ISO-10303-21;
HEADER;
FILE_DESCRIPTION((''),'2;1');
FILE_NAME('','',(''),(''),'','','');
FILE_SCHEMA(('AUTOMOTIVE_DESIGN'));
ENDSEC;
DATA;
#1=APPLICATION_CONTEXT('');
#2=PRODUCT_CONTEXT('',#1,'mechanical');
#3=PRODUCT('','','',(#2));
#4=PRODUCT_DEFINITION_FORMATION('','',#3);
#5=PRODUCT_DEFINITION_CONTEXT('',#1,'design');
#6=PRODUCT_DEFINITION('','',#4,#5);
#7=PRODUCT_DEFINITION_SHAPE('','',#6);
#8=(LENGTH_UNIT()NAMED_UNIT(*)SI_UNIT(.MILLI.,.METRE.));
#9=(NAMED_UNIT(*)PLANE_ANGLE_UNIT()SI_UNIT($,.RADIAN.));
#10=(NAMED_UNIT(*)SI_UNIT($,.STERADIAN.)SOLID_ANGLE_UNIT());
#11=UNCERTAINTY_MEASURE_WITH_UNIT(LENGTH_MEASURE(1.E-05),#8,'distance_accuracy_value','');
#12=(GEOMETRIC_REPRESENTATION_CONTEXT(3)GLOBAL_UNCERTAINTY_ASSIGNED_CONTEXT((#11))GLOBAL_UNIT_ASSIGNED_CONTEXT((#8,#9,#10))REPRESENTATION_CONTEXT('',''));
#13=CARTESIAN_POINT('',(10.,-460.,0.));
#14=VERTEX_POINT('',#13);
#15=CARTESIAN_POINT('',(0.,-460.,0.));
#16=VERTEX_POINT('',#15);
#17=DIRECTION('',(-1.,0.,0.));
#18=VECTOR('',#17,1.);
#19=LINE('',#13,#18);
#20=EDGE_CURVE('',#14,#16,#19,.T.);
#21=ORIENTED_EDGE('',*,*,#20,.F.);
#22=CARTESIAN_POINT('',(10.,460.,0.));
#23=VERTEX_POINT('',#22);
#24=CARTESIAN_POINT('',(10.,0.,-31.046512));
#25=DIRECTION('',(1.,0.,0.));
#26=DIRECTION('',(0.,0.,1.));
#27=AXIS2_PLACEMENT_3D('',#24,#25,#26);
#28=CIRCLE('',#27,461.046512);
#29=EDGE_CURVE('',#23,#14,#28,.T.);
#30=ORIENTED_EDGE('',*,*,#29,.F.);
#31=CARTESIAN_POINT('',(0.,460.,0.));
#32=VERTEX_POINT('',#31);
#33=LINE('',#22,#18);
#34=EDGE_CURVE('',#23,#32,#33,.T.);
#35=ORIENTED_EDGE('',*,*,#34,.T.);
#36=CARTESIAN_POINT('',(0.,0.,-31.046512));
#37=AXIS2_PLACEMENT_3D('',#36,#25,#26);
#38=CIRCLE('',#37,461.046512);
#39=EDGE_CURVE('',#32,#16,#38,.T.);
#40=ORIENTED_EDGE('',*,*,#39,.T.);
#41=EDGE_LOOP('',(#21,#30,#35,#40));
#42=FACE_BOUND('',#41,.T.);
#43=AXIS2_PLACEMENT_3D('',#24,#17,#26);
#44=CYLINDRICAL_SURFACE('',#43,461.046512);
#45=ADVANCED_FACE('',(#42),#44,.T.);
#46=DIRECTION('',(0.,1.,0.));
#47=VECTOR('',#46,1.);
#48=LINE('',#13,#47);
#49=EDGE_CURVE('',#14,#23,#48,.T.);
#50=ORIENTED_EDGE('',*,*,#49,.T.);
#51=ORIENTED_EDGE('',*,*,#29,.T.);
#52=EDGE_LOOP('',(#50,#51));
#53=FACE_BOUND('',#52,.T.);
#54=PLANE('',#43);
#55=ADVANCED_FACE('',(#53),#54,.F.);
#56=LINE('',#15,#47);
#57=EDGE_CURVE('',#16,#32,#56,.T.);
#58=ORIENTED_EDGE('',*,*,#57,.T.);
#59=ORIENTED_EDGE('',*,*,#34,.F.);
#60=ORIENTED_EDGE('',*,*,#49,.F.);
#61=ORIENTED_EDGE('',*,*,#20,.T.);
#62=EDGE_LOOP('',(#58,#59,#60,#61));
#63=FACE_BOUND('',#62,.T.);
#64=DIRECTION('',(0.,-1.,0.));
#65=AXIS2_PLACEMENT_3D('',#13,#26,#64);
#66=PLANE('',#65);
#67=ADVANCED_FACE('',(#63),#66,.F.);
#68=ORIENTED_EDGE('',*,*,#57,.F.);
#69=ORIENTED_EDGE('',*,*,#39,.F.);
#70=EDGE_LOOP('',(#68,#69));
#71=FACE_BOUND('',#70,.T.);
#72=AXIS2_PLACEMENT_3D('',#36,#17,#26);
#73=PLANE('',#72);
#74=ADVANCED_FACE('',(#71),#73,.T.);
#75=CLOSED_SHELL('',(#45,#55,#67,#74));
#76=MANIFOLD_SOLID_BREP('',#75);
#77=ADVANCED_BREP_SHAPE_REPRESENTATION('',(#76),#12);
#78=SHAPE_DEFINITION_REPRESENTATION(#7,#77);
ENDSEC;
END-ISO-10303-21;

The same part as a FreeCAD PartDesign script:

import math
import FreeCAD as App
import Part
import Sketcher

V = App.Vector
Q = App.Units.Quantity

doc = App.newDocument("Part")
body = doc.addObject("PartDesign::Body", "Body")

# Sketch on YZ plane
sketch1 = doc.addObject("Sketcher::SketchObject", "Sketch")
body.addObject(sketch1)
sketch1.AttachmentSupport = (doc.YZ_Plane, [""])
sketch1.MapMode = "FlatFace"
sketch1.addGeometry([
    Part.LineSegment(V(-460, 0, 0), V(460, 0, 0)),
    Part.ArcOfCircle(Part.Circle(V(0, -31, 0), V(0, 0, 1), 461), math.radians(4), math.radians(176)),
], False)
sketch1.addConstraint([
    Sketcher.Constraint("Coincident", 0, 1, 1, 2),
    Sketcher.Constraint("Coincident", 1, 1, 0, 2),
    Sketcher.Constraint("Horizontal", 0),
    Sketcher.Constraint("Symmetric", 0, 1, 1, 1, -1, 1),
    Sketcher.Constraint("DistanceX", 0, 1, 0, 2, Q("920 mm")),
    Sketcher.Constraint("Radius", 1, Q("461.046512 mm")),
])
pad1 = doc.addObject("PartDesign::Pad", "Pad")
body.addObject(pad1)
pad1.Profile = sketch1
pad1.Length = 10

doc.recompute()
